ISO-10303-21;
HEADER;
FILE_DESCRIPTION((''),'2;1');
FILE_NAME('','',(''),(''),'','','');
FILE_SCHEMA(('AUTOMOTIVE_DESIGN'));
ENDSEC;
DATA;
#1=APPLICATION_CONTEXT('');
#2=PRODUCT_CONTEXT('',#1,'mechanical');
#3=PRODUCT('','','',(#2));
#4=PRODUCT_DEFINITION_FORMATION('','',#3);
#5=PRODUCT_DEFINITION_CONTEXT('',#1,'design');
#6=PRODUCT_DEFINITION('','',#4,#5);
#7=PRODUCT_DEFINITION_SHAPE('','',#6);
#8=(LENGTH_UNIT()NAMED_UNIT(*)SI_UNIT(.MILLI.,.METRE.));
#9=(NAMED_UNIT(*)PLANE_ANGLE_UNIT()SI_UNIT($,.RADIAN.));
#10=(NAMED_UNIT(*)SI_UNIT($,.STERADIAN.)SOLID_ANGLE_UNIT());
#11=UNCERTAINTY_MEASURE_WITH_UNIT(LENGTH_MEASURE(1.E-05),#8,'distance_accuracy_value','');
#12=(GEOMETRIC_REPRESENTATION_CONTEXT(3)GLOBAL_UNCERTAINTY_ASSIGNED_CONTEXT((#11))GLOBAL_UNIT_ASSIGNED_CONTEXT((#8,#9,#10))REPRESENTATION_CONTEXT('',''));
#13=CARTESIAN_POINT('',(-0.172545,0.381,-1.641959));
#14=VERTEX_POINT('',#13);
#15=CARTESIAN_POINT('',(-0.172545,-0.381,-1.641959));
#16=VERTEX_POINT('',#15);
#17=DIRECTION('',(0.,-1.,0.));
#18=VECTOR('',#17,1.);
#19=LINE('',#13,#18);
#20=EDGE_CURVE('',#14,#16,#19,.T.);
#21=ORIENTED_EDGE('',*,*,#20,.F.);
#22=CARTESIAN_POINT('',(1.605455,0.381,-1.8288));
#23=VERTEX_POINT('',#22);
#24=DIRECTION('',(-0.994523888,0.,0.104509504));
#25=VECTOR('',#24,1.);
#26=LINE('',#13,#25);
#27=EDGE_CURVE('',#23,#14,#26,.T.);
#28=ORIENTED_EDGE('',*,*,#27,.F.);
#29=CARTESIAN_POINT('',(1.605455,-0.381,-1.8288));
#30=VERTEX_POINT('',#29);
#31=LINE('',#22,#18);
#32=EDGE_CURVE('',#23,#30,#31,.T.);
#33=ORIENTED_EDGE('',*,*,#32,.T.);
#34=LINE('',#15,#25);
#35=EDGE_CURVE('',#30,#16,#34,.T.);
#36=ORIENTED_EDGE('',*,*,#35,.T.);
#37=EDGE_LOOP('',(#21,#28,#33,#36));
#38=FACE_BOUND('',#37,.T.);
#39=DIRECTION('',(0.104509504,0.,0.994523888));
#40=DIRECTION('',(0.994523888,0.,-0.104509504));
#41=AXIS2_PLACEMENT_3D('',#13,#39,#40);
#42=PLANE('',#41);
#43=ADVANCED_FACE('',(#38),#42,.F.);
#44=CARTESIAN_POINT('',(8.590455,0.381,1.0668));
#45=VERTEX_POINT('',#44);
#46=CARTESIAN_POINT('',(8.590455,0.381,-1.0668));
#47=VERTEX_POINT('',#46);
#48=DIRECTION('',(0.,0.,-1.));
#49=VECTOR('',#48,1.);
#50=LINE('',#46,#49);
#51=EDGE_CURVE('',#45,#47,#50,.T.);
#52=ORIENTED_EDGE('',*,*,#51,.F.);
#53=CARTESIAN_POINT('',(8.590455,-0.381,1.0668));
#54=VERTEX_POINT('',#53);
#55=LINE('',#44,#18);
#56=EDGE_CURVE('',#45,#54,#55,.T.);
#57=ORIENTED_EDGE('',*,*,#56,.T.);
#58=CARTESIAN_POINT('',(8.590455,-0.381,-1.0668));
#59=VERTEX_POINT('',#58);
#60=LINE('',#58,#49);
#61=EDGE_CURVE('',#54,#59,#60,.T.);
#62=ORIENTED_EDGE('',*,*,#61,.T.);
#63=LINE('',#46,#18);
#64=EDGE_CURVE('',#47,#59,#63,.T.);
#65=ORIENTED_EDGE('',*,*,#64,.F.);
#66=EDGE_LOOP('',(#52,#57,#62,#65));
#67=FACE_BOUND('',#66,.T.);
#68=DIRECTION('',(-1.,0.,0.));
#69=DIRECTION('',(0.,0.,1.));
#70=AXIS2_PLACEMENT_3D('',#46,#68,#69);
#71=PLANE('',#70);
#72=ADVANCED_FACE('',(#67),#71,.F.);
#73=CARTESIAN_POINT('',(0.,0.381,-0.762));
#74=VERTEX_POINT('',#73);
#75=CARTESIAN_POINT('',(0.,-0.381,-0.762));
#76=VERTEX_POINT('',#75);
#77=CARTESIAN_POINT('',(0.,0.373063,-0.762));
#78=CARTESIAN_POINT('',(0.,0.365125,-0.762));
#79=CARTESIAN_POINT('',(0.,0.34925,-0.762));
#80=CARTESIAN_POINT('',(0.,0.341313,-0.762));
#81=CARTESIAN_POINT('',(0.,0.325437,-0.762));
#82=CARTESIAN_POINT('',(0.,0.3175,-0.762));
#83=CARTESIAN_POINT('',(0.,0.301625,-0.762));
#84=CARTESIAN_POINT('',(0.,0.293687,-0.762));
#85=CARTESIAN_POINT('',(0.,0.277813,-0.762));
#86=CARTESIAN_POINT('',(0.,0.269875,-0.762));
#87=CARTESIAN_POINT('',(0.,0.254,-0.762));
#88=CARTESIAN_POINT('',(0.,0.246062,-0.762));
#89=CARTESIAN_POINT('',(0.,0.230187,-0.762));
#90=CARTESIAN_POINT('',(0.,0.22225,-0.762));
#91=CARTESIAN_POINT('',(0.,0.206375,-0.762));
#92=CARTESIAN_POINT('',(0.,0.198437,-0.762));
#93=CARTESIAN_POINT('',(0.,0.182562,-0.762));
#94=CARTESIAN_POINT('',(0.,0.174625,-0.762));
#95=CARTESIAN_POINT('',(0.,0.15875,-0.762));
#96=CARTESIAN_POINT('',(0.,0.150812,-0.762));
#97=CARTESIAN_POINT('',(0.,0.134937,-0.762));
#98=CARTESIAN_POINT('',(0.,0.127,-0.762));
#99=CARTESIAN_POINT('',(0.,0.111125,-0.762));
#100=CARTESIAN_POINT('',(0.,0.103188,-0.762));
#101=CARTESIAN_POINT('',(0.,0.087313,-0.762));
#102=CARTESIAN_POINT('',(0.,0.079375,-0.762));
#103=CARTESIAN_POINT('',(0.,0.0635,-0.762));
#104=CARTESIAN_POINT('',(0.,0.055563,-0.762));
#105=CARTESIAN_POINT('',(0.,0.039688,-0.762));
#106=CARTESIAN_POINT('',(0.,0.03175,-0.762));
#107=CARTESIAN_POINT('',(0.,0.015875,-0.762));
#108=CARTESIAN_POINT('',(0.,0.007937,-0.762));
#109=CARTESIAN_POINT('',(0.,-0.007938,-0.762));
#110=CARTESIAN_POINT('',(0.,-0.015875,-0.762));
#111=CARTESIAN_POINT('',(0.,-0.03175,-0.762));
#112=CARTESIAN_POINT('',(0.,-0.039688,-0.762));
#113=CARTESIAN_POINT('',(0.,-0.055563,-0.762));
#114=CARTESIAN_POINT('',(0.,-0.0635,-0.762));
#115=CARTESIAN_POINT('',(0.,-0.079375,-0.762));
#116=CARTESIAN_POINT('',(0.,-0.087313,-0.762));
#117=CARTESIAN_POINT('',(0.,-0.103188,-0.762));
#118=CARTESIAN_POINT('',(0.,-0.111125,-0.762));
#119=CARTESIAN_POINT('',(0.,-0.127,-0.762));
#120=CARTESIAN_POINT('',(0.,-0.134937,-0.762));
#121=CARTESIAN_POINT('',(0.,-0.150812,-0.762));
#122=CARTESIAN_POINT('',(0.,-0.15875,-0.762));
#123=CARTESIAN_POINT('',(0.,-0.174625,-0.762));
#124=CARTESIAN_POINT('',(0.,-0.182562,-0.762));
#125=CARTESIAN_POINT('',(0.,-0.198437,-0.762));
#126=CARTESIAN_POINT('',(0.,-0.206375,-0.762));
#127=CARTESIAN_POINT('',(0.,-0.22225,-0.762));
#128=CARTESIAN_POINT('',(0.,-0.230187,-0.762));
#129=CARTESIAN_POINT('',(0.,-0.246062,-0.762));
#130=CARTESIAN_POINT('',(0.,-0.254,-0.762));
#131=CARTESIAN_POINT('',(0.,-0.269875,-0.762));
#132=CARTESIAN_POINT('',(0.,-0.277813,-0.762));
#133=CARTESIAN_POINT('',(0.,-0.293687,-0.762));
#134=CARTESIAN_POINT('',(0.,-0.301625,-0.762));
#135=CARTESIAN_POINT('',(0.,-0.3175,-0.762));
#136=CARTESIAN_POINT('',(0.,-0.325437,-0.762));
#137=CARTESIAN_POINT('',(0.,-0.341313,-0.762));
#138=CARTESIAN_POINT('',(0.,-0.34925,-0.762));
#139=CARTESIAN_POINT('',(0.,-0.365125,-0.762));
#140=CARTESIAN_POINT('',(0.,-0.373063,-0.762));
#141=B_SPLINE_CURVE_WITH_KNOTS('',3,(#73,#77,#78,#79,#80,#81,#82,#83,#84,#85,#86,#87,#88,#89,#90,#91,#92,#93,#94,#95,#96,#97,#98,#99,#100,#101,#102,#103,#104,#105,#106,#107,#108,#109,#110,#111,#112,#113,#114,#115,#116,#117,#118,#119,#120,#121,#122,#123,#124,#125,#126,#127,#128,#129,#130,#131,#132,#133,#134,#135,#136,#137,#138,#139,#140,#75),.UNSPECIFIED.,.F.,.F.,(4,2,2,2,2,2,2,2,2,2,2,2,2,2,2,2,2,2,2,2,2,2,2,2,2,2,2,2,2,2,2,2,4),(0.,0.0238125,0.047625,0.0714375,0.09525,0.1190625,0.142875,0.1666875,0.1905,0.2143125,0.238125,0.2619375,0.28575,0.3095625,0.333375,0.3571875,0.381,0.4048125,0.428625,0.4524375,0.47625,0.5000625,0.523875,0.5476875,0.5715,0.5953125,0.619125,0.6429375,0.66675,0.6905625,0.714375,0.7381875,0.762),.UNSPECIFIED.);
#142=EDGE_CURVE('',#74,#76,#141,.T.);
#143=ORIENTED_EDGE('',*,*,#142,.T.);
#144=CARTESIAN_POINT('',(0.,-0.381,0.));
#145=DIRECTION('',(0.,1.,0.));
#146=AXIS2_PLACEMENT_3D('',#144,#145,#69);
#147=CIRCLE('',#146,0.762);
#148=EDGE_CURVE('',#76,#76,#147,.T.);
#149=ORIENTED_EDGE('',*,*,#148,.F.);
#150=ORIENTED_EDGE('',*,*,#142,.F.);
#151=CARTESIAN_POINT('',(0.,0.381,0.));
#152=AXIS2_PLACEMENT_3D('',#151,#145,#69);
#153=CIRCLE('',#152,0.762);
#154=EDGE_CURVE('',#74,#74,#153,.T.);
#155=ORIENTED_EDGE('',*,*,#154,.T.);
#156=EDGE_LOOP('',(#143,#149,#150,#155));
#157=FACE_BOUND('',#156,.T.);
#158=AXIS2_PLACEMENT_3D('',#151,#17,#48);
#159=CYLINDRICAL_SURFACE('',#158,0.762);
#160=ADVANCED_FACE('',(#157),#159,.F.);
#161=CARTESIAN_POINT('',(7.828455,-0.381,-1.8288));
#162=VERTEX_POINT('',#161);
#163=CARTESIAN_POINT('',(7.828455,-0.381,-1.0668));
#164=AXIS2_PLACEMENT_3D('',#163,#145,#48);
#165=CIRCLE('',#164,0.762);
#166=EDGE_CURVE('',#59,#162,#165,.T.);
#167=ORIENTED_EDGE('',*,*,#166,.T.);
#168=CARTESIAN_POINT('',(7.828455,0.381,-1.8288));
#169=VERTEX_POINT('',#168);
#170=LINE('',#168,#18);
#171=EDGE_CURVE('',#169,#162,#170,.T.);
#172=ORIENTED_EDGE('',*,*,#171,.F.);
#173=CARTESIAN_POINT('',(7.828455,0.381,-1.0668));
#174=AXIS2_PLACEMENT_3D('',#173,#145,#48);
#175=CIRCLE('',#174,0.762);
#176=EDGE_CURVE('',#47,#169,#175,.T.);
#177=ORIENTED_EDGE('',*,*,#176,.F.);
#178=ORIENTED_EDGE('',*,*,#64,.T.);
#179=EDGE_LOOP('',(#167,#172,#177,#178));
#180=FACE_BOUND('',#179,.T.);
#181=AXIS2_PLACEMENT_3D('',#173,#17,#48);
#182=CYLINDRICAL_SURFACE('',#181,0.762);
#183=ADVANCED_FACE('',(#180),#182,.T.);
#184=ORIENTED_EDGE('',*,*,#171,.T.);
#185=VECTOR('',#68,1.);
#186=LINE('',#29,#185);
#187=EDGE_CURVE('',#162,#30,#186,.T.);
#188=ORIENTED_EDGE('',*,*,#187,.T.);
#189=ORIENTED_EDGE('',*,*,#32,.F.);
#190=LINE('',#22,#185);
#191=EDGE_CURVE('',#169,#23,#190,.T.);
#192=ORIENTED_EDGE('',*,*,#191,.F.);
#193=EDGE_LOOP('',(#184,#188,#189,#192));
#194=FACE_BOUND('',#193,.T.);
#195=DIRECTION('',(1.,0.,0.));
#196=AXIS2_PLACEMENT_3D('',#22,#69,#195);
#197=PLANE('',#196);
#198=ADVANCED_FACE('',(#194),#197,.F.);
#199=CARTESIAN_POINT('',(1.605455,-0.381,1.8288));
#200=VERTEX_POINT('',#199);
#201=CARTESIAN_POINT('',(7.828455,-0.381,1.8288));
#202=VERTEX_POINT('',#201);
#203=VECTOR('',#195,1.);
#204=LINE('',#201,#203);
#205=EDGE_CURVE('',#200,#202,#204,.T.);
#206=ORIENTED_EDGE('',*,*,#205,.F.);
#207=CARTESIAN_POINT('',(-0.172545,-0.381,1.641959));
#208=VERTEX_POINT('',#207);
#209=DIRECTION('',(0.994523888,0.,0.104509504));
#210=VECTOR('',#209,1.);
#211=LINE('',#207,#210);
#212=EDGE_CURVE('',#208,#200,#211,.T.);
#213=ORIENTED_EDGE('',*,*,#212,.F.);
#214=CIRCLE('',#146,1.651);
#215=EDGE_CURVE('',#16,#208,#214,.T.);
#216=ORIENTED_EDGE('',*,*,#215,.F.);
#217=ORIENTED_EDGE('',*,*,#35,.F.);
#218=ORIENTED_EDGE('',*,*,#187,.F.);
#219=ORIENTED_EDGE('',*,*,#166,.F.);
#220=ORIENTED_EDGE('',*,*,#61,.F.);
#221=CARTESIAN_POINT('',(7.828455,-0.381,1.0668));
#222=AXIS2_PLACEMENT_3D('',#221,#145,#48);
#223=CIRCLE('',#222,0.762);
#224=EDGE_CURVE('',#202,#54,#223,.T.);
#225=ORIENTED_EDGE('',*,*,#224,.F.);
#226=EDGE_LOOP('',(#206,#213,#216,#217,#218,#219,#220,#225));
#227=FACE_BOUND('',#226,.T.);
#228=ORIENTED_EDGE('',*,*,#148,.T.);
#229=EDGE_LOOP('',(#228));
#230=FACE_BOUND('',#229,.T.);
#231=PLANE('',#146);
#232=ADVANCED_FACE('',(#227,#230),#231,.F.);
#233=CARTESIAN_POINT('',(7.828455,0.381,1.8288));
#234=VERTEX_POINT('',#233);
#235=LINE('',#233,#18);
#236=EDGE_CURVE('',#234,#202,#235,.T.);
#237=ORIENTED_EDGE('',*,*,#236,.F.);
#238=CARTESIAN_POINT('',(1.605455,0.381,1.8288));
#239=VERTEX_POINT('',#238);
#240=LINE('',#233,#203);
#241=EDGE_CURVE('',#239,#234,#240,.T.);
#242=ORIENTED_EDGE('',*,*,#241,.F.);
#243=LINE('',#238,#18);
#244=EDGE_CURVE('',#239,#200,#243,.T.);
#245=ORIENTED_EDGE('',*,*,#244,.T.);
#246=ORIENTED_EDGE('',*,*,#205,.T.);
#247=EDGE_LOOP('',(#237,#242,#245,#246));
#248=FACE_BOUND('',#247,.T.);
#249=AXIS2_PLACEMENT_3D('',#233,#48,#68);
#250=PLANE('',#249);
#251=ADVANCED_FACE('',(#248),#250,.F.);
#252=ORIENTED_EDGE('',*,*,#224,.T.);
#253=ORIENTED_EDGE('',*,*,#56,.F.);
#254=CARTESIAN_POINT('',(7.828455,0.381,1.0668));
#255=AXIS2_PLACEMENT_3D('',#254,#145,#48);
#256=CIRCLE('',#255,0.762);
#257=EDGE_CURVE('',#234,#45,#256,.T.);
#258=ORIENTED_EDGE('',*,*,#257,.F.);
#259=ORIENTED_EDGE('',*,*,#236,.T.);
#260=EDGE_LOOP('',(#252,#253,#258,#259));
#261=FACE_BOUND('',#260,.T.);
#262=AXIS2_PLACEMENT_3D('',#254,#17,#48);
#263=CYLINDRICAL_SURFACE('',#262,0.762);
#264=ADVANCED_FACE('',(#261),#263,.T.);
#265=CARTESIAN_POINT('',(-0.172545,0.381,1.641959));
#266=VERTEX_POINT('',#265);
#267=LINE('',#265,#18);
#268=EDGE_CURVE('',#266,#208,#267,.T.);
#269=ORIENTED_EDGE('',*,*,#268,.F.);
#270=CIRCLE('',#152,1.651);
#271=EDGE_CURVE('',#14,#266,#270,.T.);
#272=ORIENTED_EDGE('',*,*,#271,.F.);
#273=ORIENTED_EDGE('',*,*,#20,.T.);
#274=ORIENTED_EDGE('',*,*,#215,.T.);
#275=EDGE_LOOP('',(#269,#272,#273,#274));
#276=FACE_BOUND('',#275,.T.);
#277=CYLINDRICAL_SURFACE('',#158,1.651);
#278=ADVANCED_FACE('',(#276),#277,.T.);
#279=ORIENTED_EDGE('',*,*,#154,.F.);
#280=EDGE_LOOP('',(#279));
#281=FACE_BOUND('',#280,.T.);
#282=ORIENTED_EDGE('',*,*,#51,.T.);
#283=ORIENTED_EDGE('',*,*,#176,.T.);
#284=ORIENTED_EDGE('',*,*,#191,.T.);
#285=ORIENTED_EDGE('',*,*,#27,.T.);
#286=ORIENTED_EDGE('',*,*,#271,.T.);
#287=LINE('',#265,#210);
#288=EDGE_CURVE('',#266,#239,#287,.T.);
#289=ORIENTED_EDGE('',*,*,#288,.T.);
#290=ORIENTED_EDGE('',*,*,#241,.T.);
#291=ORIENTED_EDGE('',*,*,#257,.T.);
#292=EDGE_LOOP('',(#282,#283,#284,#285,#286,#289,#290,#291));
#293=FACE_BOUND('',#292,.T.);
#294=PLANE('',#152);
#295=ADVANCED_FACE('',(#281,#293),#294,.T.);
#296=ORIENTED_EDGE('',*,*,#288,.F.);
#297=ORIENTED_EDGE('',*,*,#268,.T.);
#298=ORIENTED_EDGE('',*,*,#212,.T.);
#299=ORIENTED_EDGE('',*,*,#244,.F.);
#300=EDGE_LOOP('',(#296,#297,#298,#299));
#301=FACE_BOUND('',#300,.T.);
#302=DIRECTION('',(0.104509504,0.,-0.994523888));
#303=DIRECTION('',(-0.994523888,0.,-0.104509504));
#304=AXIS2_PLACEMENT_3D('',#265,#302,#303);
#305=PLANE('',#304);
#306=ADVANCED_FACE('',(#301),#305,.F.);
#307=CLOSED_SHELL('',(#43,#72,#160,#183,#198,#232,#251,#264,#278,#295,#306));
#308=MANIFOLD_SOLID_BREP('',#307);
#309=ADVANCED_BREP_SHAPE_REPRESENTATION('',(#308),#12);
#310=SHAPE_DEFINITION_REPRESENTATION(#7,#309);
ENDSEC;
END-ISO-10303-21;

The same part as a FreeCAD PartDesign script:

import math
import FreeCAD as App
import Part
import Sketcher

V = App.Vector
Q = App.Units.Quantity

doc = App.newDocument("Part")
body = doc.addObject("PartDesign::Body", "Body")

# Sketch on XZ plane
sketch1 = doc.addObject("Sketcher::SketchObject", "Sketch")
body.addObject(sketch1)
sketch1.AttachmentSupport = (doc.XZ_Plane, [""])
sketch1.MapMode = "FlatFace"
sketch1.addGeometry(Part.LineSegment(V(1.6, -1.8, 0), V(-0.2, -1.6, 0)), False)
sketch1.addGeometry(Part.ArcOfCircle(Part.Circle(V(0, 0, 0), V(0, 0, 1), 1.7), math.radians(96), math.radians(264)), False)
sketch1.addGeometry(Part.LineSegment(V(-0.2, 1.6, 0), V(1.6, 1.8, 0)), False)
sketch1.addGeometry(Part.LineSegment(V(1.6, 1.8, 0), V(7.8, 1.8, 0)), False)
sketch1.addGeometry(Part.ArcOfCircle(Part.Circle(V(7.8, 1.1, 0), V(0, 0, 1), 0.8), math.radians(0), math.radians(90)), False)
sketch1.addGeometry(Part.LineSegment(V(8.6, 1.1, 0), V(8.6, -1.1, 0)), False)
sketch1.addGeometry(Part.ArcOfCircle(Part.Circle(V(7.8, -1.1, 0), V(0, 0, 1), 0.8), math.radians(-90), math.radians(0)), False)
sketch1.addGeometry(Part.LineSegment(V(7.8, -1.8, 0), V(1.6, -1.8, 0)), False)
sketch1.addGeometry(Part.Circle(V(0, 0, 0), V(0, 0, 1), 0.8), False)
sketch1.addConstraint(Sketcher.Constraint("Tangent", 0, 2, 1, 2))
sketch1.addConstraint(Sketcher.Constraint("Tangent", 1, 1, 2, 1))
sketch1.addConstraint(Sketcher.Constraint("Coincident", 2, 2, 3, 1))
sketch1.addConstraint(Sketcher.Constraint("Tangent", 3, 2, 4, 2))
sketch1.addConstraint(Sketcher.Constraint("Tangent", 4, 1, 5, 1))
sketch1.addConstraint(Sketcher.Constraint("Tangent", 5, 2, 6, 2))
sketch1.addConstraint(Sketcher.Constraint("Tangent", 6, 1, 7, 1))
sketch1.addConstraint(Sketcher.Constraint("Coincident", 7, 2, 0, 1))
sketch1.addConstraint(Sketcher.Constraint("Horizontal", 3))
sketch1.addConstraint(Sketcher.Constraint("Vertical", 5))
sketch1.addConstraint(Sketcher.Constraint("Horizontal", 7))
sketch1.addConstraint(Sketcher.Constraint("Coincident", 1, 3, -1, 1))
sketch1.addConstraint(Sketcher.Constraint("Coincident", 8, 3, -1, 1))
sketch1.addConstraint(Sketcher.Constraint("Equal", 4, 6))
sketch1.addConstraint(Sketcher.Constraint("Equal", 6, 8))
sketch1.addConstraint(Sketcher.Constraint("Symmetric", 2, 2, 7, 2, -1))
sketch1.addConstraint(Sketcher.Constraint("Diameter", 8, Q("0.06 in")))
sketch1.addConstraint(Sketcher.Constraint("Radius", 1, Q("0.065 in")))
sketch1.addConstraint(Sketcher.Constraint("DistanceX", 3, 1, 3, 2, Q("0.245 in")))
sketch1.addConstraint(Sketcher.Constraint("DistanceY", 5, 2, 5, 1, Q("0.084 in")))
sketch1.addConstraint(Sketcher.Constraint("DistanceX", 1, 1, 2, 2, Q("0.07 in")))
pad1 = doc.addObject("PartDesign::Pad", "Pad")
body.addObject(pad1)
pad1.Profile = sketch1
pad1.Length = Q("0.03 in")
pad1.Midplane = True

doc.recompute()
